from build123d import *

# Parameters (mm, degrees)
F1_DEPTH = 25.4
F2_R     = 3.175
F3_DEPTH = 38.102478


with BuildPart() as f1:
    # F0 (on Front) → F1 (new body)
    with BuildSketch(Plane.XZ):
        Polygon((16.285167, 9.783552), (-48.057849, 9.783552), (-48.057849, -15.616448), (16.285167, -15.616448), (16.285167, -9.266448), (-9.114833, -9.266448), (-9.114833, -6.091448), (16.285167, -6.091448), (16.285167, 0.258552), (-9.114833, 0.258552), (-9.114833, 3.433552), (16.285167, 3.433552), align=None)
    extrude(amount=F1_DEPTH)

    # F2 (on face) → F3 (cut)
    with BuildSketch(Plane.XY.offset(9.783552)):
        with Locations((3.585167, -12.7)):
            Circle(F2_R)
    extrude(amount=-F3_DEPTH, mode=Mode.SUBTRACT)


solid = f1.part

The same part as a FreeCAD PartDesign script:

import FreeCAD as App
import Part
import Sketcher
Q = App.Units.Quantity


def add_polygon(sketch, points):
    """Adds a closed chain of lines whose ends are joined by coincident constraints."""
    first, n = sketch.GeometryCount, len(points)
    for a, b in zip(points, points[1:] + points[:1]):
        sketch.addGeometry(Part.LineSegment(App.Vector(*a, 0), App.Vector(*b, 0)), False)
    for i in range(n):
        sketch.addConstraint(Sketcher.Constraint("Coincident", first + i, 2, first + (i + 1) % n, 1))

doc = App.newDocument("Part")
body = doc.addObject("PartDesign::Body", "Body")

# Sketch on XZ plane
sketch1 = body.newObject("Sketcher::SketchObject", "Sketch")
sketch1.AttachmentSupport = (doc.getObject("XZ_Plane"), [""])
sketch1.MapMode = "FlatFace"
add_polygon(sketch1, [(16.285167, 9.783552), (-48.057849, 9.783552), (-48.057849, -15.616448), (16.285167, -15.616448), (16.285167, -9.266448), (-9.114833, -9.266448), (-9.114833, -6.091448), (16.285167, -6.091448), (16.285167, 0.258552), (-9.114833, 0.258552), (-9.114833, 3.433552), (16.285167, 3.433552)])  # lines 0-11
sketch1.addConstraint(Sketcher.Constraint("Horizontal", 0))
sketch1.addConstraint(Sketcher.Constraint("Vertical", 1))
sketch1.addConstraint(Sketcher.Constraint("Horizontal", 2))
sketch1.addConstraint(Sketcher.Constraint("Vertical", 3))
sketch1.addConstraint(Sketcher.Constraint("Horizontal", 4))
sketch1.addConstraint(Sketcher.Constraint("Vertical", 5))
sketch1.addConstraint(Sketcher.Constraint("Horizontal", 6))
sketch1.addConstraint(Sketcher.Constraint("Vertical", 7))
sketch1.addConstraint(Sketcher.Constraint("Horizontal", 8))
sketch1.addConstraint(Sketcher.Constraint("Vertical", 9))
sketch1.addConstraint(Sketcher.Constraint("Horizontal", 10))
sketch1.addConstraint(Sketcher.Constraint("Vertical", 11))
sketch1.addConstraint(Sketcher.Constraint("Vertical", 3, 2, 6, 2))
sketch1.addConstraint(Sketcher.Constraint("Vertical", 5, 2, 8, 2))
sketch1.addConstraint(Sketcher.Constraint("Vertical", 7, 2, 10, 2))
sketch1.addConstraint(Sketcher.Constraint("Equal", 10, 1))
sketch1.addConstraint(Sketcher.Constraint("Equal", 3, 7))
sketch1.addConstraint(Sketcher.Constraint("Equal", 5, 9))
sketch1.addConstraint(Sketcher.Constraint("Equal", 7, 11))
sketch1.addConstraint(Sketcher.Constraint("DistanceX", 4, 2, 4, 1, Q("1 in")))
sketch1.addConstraint(Sketcher.Constraint("DistanceY", 3, 1, 3, 2, Q("0.25 in")))
sketch1.addConstraint(Sketcher.Constraint("DistanceX", 0, 2, 0, 1, Q("64.343016 mm")))
sketch1.addConstraint(Sketcher.Constraint("DistanceX", 0, 2, -1, 1, Q("48.057849 mm")))
sketch1.addConstraint(Sketcher.Constraint("DistanceY", -1, 1, 0, 2, Q("9.783552 mm")))
pad1 = body.newObject("PartDesign::Pad", "Pad")
pad1.Profile = sketch1
pad1.Length = Q("1 in")

# Sketch on XY plane
sketch2 = body.newObject("Sketcher::SketchObject", "Sketch001")
sketch2.AttachmentSupport = (doc.getObject("XY_Plane"), [""])
sketch2.MapMode = "FlatFace"
sketch2.AttachmentOffset = App.Placement(App.Vector(0, 0, 9.783552), App.Rotation())
sketch2.addGeometry(Part.Circle(App.Vector(3.585167, -12.7, 0), App.Vector(0, 0, 1), 3.175), False)
sketch2.addConstraint(Sketcher.Constraint("Diameter", 0, Q("0.25 in")))
sketch2.addConstraint(Sketcher.Constraint("DistanceY", 0, 3, -1, 1, Q("0.5 in")))
sketch2.addConstraint(Sketcher.Constraint("DistanceX", -1, 1, 0, 3, Q("3.585167 mm")))
pocket1 = body.newObject("PartDesign::Pocket", "Pocket")
pocket1.Profile = sketch2
pocket1.Length = 38.102478

doc.recompute()
